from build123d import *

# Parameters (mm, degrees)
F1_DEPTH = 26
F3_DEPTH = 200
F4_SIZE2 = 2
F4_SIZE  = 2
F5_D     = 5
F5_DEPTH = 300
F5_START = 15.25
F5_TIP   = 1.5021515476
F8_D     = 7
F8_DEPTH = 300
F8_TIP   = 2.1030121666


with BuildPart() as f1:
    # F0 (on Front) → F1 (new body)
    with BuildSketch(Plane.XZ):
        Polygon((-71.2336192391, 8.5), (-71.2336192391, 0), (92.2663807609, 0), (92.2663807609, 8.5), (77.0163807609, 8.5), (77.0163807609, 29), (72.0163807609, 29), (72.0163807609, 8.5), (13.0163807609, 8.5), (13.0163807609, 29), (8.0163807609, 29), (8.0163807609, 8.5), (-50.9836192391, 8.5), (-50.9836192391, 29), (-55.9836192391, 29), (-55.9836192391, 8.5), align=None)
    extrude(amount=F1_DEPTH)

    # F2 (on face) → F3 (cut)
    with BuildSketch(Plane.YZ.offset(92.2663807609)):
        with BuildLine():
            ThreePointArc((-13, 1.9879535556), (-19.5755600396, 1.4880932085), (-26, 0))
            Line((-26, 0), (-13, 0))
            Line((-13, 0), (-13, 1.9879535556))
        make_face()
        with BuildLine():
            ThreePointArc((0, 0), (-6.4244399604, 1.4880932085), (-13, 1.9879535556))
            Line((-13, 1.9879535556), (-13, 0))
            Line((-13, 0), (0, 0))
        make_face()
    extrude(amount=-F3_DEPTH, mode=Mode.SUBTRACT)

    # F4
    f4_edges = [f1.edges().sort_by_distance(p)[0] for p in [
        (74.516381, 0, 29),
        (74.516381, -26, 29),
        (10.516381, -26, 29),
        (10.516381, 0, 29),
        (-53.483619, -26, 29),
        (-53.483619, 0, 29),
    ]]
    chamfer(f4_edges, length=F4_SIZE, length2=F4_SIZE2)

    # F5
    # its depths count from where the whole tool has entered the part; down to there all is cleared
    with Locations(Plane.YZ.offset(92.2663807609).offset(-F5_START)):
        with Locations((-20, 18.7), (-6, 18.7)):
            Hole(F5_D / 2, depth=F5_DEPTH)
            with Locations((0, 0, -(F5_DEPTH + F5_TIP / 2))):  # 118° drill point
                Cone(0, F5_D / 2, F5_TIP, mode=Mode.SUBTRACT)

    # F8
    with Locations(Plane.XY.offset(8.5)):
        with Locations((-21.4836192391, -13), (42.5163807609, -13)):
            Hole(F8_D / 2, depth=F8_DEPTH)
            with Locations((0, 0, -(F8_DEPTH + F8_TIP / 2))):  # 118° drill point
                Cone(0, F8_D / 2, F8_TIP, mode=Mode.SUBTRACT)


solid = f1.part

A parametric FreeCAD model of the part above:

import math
import FreeCAD as App
import Part
import Sketcher
from FreeCAD import Vector
Q = App.Units.Quantity


def edges_at(feature, points):
    """Names of the edges that pass closest to the given points."""
    edges = feature.Shape.Edges
    near = lambda p: min(range(len(edges)), key=lambda i: edges[i].distToShape(Part.Vertex(*p))[0])
    return sorted({f"Edge{near(p) + 1}" for p in points})


def add_polygon(sketch, points):
    """Adds a closed chain of lines whose ends are joined by coincident constraints."""
    first, n = sketch.GeometryCount, len(points)
    for a, b in zip(points, points[1:] + points[:1]):
        sketch.addGeometry(Part.LineSegment(App.Vector(*a, 0), App.Vector(*b, 0)), False)
    for i in range(n):
        sketch.addConstraint(Sketcher.Constraint("Coincident", first + i, 2, first + (i + 1) % n, 1))

doc = App.newDocument("Part")
body = doc.addObject("PartDesign::Body", "Body")

# Sketch on XZ plane
sketch1 = body.newObject("Sketcher::SketchObject", "Sketch")
sketch1.AttachmentSupport = (doc.getObject("XZ_Plane"), [""])
sketch1.MapMode = "FlatFace"
add_polygon(sketch1, [(-71, 8), (-71, 0), (92, 0), (92, 8), (77, 8), (77, 29), (72, 29), (72, 8), (13, 8), (13, 29), (8, 29), (8, 8), (-51, 8), (-51, 29), (-56, 29), (-56, 8)])  # lines 0-15
sketch1.addConstraint(Sketcher.Constraint("Vertical", 0))
sketch1.addConstraint(Sketcher.Constraint("Horizontal", 1))
sketch1.addConstraint(Sketcher.Constraint("Vertical", 2))
sketch1.addConstraint(Sketcher.Constraint("Horizontal", 3))
sketch1.addConstraint(Sketcher.Constraint("Vertical", 4))
sketch1.addConstraint(Sketcher.Constraint("Horizontal", 5))
sketch1.addConstraint(Sketcher.Constraint("Vertical", 6))
sketch1.addConstraint(Sketcher.Constraint("Horizontal", 7))
sketch1.addConstraint(Sketcher.Constraint("Vertical", 8))
sketch1.addConstraint(Sketcher.Constraint("Horizontal", 9))
sketch1.addConstraint(Sketcher.Constraint("Vertical", 10))
sketch1.addConstraint(Sketcher.Constraint("Horizontal", 11))
sketch1.addConstraint(Sketcher.Constraint("Vertical", 12))
sketch1.addConstraint(Sketcher.Constraint("Horizontal", 13))
sketch1.addConstraint(Sketcher.Constraint("Vertical", 14))
sketch1.addConstraint(Sketcher.Constraint("Horizontal", 15))
sketch1.addConstraint(Sketcher.Constraint("PointOnObject", 0, 2, -1))
sketch1.addConstraint(Sketcher.Constraint("Horizontal", 3, 2, 6, 2))
sketch1.addConstraint(Sketcher.Constraint("Horizontal", 5, 2, 8, 2))
sketch1.addConstraint(Sketcher.Constraint("Horizontal", 7, 2, 10, 2))
sketch1.addConstraint(Sketcher.Constraint("Horizontal", 9, 2, 12, 2))
sketch1.addConstraint(Sketcher.Constraint("Horizontal", 11, 2, 14, 2))
sketch1.addConstraint(Sketcher.Constraint("Equal", 5, 9))
sketch1.addConstraint(Sketcher.Constraint("Equal", 7, 11))
sketch1.addConstraint(Sketcher.Constraint("Equal", 9, 13))
sketch1.addConstraint(Sketcher.Constraint("Equal", 3, 15))
sketch1.addConstraint(Sketcher.Constraint("DistanceX", 5, 2, 5, 1, Q("5 mm")))
sketch1.addConstraint(Sketcher.Constraint("DistanceX", 7, 2, 7, 1, Q("59 mm")))
sketch1.addConstraint(Sketcher.Constraint("DistanceX", 1, 1, 1, 2, Q("163.5 mm")))
sketch1.addConstraint(Sketcher.Constraint("DistanceY", 0, 2, 0, 1, Q("8.5 mm")))
sketch1.addConstraint(Sketcher.Constraint("DistanceY", 4, 1, 4, 2, Q("20.5 mm")))
sketch1.addConstraint(Sketcher.Constraint("DistanceX", 0, 2, -1, 1, Q("71.233619 mm")))
pad1 = body.newObject("PartDesign::Pad", "Pad")
pad1.Profile = sketch1
pad1.Length = 26

# Sketch on YZ plane
sketch2 = body.newObject("Sketcher::SketchObject", "Sketch001")
sketch2.AttachmentSupport = (doc.getObject("YZ_Plane"), [""])
sketch2.MapMode = "FlatFace"
sketch2.AttachmentOffset = App.Placement(Vector(0, 0, 92.266381), App.Rotation())
sketch2.addGeometry(Part.ArcOfCircle(Part.Circle(Vector(-13, -42, 0), Vector(0, 0, 1), 43), math.radians(90), math.radians(107.39)), False)
sketch2.addGeometry(Part.LineSegment(Vector(-26, 0, 0), Vector(0, 0, 0)), False)
sketch2.addGeometry(Part.ArcOfCircle(Part.Circle(Vector(-13, -42, 0), Vector(0, 0, 1), 43), math.radians(72.61), math.radians(90)), False)
sketch2.addConstraint(Sketcher.Constraint("Coincident", 0, 2, 1, 1))
sketch2.addConstraint(Sketcher.Constraint("Coincident", 1, 2, 2, 1))
sketch2.addConstraint(Sketcher.Constraint("Tangent", 2, 2, 0, 1))
sketch2.addConstraint(Sketcher.Constraint("Horizontal", 1))
sketch2.addConstraint(Sketcher.Constraint("Coincident", 1, 2, -1, 1))
sketch2.addConstraint(Sketcher.Constraint("Equal", 0, 2))
sketch2.addConstraint(Sketcher.Constraint("Vertical", 0, 3, 2, 2))
sketch2.addConstraint(Sketcher.Constraint("Radius", 0, Q("43.5 mm")))
sketch2.addConstraint(Sketcher.Constraint("DistanceX", 1, 1, 1, 2, Q("26 mm")))
pocket1 = body.newObject("PartDesign::Pocket", "Pocket")
pocket1.Profile = sketch2
pocket1.Length = 200
doc.recompute()

chamfer = body.newObject("PartDesign::Chamfer", "Chamfer")
chamfer.Base = (pocket1, edges_at(pocket1, [
    (74.516, 0, 29),
    (74.516, -26, 29),
    (10.516, -26, 29),
    (10.516, 0, 29),
    (-53.484, -26, 29),
    (-53.484, 0, 29),
]))
chamfer.ChamferType = "Two distances"
chamfer.Size = 2
chamfer.Size2 = 2

# Sketch on YZ plane
sketch3 = body.newObject("Sketcher::SketchObject", "Sketch002")
sketch3.AttachmentSupport = (doc.getObject("YZ_Plane"), [""])
sketch3.MapMode = "FlatFace"
sketch3.AttachmentOffset = App.Placement(Vector(0, 0, 77.016381), App.Rotation())
sketch3.addGeometry(Part.Circle(Vector(-20, 18.7, 0), Vector(0, 0, 1), 2.5), False)
sketch3.addGeometry(Part.Circle(Vector(-6, 18.7, 0), Vector(0, 0, 1), 2.5), False)
sketch3.addConstraint(Sketcher.Constraint("Equal", 0, 1))
sketch3.addConstraint(Sketcher.Constraint("Horizontal", 0, 3, 1, 3))
sketch3.addConstraint(Sketcher.Constraint("Diameter", 0, Q("5 mm")))
sketch3.addConstraint(Sketcher.Constraint("DistanceX", 0, 3, -1, 1, Q("20 mm")))
sketch3.addConstraint(Sketcher.Constraint("DistanceX", 1, 3, -1, 1, Q("6 mm")))
sketch3.addConstraint(Sketcher.Constraint("DistanceY", -1, 1, 0, 3, Q("18.7 mm")))
doc.recompute()
hole = body.newObject("PartDesign::Hole", "Hole")
hole.Profile = sketch3
hole.ThreadType = "None"
hole.Diameter = 5
hole.DepthType = "Dimension"
hole.Depth = 300
hole.DrillPoint = "Angled"
hole.DrillPointAngle = 118

# Sketch on XY plane
sketch4 = body.newObject("Sketcher::SketchObject", "Sketch003")
sketch4.AttachmentSupport = (doc.getObject("XY_Plane"), [""])
sketch4.MapMode = "FlatFace"
sketch4.AttachmentOffset = App.Placement(Vector(0, 0, 8.5), App.Rotation())
sketch4.addGeometry(Part.Circle(Vector(-21.5, -13, 0), Vector(0, 0, 1), 3.5), False)
sketch4.addGeometry(Part.Circle(Vector(42.5, -13, 0), Vector(0, 0, 1), 3.5), False)
sketch4.addConstraint(Sketcher.Constraint("Equal", 0, 1))
sketch4.addConstraint(Sketcher.Constraint("Horizontal", 0, 3, 1, 3))
sketch4.addConstraint(Sketcher.Constraint("Diameter", 0, Q("7 mm")))
sketch4.addConstraint(Sketcher.Constraint("DistanceY", 0, 3, -1, 1, Q("13 mm")))
sketch4.addConstraint(Sketcher.Constraint("DistanceX", 0, 3, 1, 3, Q("64 mm")))
sketch4.addConstraint(Sketcher.Constraint("DistanceX", 0, 3, -1, 1, Q("21.483619 mm")))
doc.recompute()
hole2 = body.newObject("PartDesign::Hole", "Hole001")
hole2.Profile = sketch4
hole2.ThreadType = "None"
hole2.Diameter = 7
hole2.DepthType = "Dimension"
hole2.Depth = 300
hole2.DrillPoint = "Angled"
hole2.DrillPointAngle = 118

doc.recompute()
